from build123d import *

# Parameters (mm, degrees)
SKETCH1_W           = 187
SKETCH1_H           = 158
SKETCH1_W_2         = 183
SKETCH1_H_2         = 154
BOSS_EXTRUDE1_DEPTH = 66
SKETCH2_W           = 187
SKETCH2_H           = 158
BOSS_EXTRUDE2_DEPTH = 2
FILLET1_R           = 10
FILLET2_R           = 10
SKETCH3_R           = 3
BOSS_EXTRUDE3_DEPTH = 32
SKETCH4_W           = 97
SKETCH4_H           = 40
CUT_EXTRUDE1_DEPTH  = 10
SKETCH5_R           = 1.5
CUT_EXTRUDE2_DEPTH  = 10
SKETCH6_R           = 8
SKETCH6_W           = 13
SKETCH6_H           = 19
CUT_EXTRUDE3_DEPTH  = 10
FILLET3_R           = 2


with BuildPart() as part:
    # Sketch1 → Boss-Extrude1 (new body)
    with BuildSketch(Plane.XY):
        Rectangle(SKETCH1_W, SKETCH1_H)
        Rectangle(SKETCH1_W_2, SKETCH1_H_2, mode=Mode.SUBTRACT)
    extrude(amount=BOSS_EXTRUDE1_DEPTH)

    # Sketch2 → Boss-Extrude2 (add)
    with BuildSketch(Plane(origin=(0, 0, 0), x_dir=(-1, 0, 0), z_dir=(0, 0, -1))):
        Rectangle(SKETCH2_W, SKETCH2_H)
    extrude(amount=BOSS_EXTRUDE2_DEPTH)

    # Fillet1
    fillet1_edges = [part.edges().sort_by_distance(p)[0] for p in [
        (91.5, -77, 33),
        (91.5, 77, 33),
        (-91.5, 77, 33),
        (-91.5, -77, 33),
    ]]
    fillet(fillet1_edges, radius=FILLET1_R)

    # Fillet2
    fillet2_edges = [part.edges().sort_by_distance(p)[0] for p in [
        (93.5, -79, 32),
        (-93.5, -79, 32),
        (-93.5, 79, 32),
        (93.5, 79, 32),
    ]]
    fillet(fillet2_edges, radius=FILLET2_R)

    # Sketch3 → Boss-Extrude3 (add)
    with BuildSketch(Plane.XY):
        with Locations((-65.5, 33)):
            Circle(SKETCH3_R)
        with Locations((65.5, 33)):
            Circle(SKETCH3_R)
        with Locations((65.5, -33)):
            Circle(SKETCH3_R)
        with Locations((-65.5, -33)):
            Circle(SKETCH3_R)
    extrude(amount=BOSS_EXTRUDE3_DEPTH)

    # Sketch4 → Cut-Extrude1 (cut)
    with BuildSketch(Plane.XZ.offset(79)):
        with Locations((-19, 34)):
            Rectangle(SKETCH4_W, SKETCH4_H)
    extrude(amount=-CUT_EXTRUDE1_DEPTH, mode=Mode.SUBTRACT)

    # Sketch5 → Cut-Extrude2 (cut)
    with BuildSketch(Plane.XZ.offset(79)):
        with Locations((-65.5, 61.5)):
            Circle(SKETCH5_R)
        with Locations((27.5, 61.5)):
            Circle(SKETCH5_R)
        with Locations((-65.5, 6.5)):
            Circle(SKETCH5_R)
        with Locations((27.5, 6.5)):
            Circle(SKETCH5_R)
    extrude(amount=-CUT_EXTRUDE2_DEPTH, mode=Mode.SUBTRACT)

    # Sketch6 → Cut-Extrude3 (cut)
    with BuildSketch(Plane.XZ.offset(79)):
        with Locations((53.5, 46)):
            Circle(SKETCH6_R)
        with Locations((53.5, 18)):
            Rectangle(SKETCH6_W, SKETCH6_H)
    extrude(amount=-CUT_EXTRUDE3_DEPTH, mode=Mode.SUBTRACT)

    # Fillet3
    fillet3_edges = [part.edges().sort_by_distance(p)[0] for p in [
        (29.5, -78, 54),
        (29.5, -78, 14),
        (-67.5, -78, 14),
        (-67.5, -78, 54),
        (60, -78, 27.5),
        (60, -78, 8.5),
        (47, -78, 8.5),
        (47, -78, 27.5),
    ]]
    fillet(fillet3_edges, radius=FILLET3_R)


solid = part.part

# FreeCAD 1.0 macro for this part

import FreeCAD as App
import Part
import Sketcher

V = App.Vector
Q = App.Units.Quantity


def edges_at(feature, points):
    """Names of the edges that pass closest to the given points."""
    edges = feature.Shape.Edges
    near = lambda p: min(range(len(edges)), key=lambda i: edges[i].distToShape(Part.Vertex(*p))[0])
    return sorted({f"Edge{near(p) + 1}" for p in points})

doc = App.newDocument("Part")
body = doc.addObject("PartDesign::Body", "Body")

# Sketch on XY plane
sketch1 = doc.addObject("Sketcher::SketchObject", "Sketch")
body.addObject(sketch1)
sketch1.AttachmentSupport = (doc.XY_Plane, [""])
sketch1.MapMode = "FlatFace"
sketch1.addGeometry(Part.LineSegment(V(-94, 79, 0), V(-94, -79, 0)), False)
sketch1.addGeometry(Part.LineSegment(V(-94, -79, 0), V(94, -79, 0)), False)
sketch1.addGeometry(Part.LineSegment(V(94, -79, 0), V(94, 79, 0)), False)
sketch1.addGeometry(Part.LineSegment(V(94, 79, 0), V(-94, 79, 0)), False)
sketch1.addGeometry(Part.LineSegment(V(92, -77, 0), V(-92, -77, 0)), False)
sketch1.addGeometry(Part.LineSegment(V(-92, -77, 0), V(-92, 77, 0)), False)
sketch1.addGeometry(Part.LineSegment(V(-92, 77, 0), V(92, 77, 0)), False)
sketch1.addGeometry(Part.LineSegment(V(92, 77, 0), V(92, -77, 0)), False)
sketch1.addConstraint(Sketcher.Constraint("Coincident", 0, 2, 1, 1))
sketch1.addConstraint(Sketcher.Constraint("Coincident", 1, 2, 2, 1))
sketch1.addConstraint(Sketcher.Constraint("Coincident", 2, 2, 3, 1))
sketch1.addConstraint(Sketcher.Constraint("Coincident", 3, 2, 0, 1))
sketch1.addConstraint(Sketcher.Constraint("Coincident", 4, 2, 5, 1))
sketch1.addConstraint(Sketcher.Constraint("Coincident", 5, 2, 6, 1))
sketch1.addConstraint(Sketcher.Constraint("Coincident", 6, 2, 7, 1))
sketch1.addConstraint(Sketcher.Constraint("Coincident", 7, 2, 4, 1))
sketch1.addConstraint(Sketcher.Constraint("Vertical", 0))
sketch1.addConstraint(Sketcher.Constraint("Horizontal", 1))
sketch1.addConstraint(Sketcher.Constraint("Vertical", 2))
sketch1.addConstraint(Sketcher.Constraint("Horizontal", 3))
sketch1.addConstraint(Sketcher.Constraint("Horizontal", 4))
sketch1.addConstraint(Sketcher.Constraint("Vertical", 5))
sketch1.addConstraint(Sketcher.Constraint("Horizontal", 6))
sketch1.addConstraint(Sketcher.Constraint("Vertical", 7))
sketch1.addConstraint(Sketcher.Constraint("Symmetric", 0, 2, 2, 2, -1, 1))
sketch1.addConstraint(Sketcher.Constraint("Symmetric", 4, 2, 6, 2, -1, 1))
sketch1.addConstraint(Sketcher.Constraint("DistanceX", 1, 1, 1, 2, Q("187 mm")))
sketch1.addConstraint(Sketcher.Constraint("DistanceX", 4, 2, 4, 1, Q("183 mm")))
sketch1.addConstraint(Sketcher.Constraint("DistanceY", 0, 2, 0, 1, Q("158 mm")))
sketch1.addConstraint(Sketcher.Constraint("DistanceY", 5, 1, 5, 2, Q("154 mm")))
pad1 = doc.addObject("PartDesign::Pad", "Pad")
body.addObject(pad1)
pad1.Profile = sketch1
pad1.Length = 66

# Sketch on XY plane
sketch2 = doc.addObject("Sketcher::SketchObject", "Sketch001")
body.addObject(sketch2)
sketch2.AttachmentSupport = (doc.XY_Plane, [""])
sketch2.MapMode = "FlatFace"
sketch2.addGeometry(Part.LineSegment(V(94, 79, 0), V(94, -79, 0)), False)
sketch2.addGeometry(Part.LineSegment(V(94, -79, 0), V(-94, -79, 0)), False)
sketch2.addGeometry(Part.LineSegment(V(-94, -79, 0), V(-94, 79, 0)), False)
sketch2.addGeometry(Part.LineSegment(V(-94, 79, 0), V(94, 79, 0)), False)
sketch2.addConstraint(Sketcher.Constraint("Coincident", 0, 2, 1, 1))
sketch2.addConstraint(Sketcher.Constraint("Coincident", 1, 2, 2, 1))
sketch2.addConstraint(Sketcher.Constraint("Coincident", 2, 2, 3, 1))
sketch2.addConstraint(Sketcher.Constraint("Coincident", 3, 2, 0, 1))
sketch2.addConstraint(Sketcher.Constraint("Vertical", 0))
sketch2.addConstraint(Sketcher.Constraint("Horizontal", 1))
sketch2.addConstraint(Sketcher.Constraint("Vertical", 2))
sketch2.addConstraint(Sketcher.Constraint("Horizontal", 3))
sketch2.addConstraint(Sketcher.Constraint("Symmetric", 0, 2, 2, 2, -1, 1))
sketch2.addConstraint(Sketcher.Constraint("DistanceX", 1, 2, 1, 1, Q("187 mm")))
sketch2.addConstraint(Sketcher.Constraint("DistanceY", 0, 2, 0, 1, Q("158 mm")))
pad2 = doc.addObject("PartDesign::Pad", "Pad001")
body.addObject(pad2)
pad2.Profile = sketch2
pad2.Length = 2
pad2.Reversed = True
doc.recompute()

fillet = doc.addObject("PartDesign::Fillet", "Fillet")
body.addObject(fillet)
fillet.Base = (pad2, edges_at(pad2, [
    (91.5, -77, 33),
    (91.5, 77, 33),
    (-91.5, 77, 33),
    (-91.5, -77, 33),
]))
fillet.Radius = 10
doc.recompute()

fillet2 = doc.addObject("PartDesign::Fillet", "Fillet001")
body.addObject(fillet2)
fillet2.Base = (fillet, edges_at(fillet, [
    (93.5, -79, 32),
    (-93.5, -79, 32),
    (-93.5, 79, 32),
    (93.5, 79, 32),
]))
fillet2.Radius = 10

# Sketch on XY plane
sketch3 = doc.addObject("Sketcher::SketchObject", "Sketch002")
body.addObject(sketch3)
sketch3.AttachmentSupport = (doc.XY_Plane, [""])
sketch3.MapMode = "FlatFace"
sketch3.addGeometry(Part.Circle(V(-65.5, 33, 0), V(0, 0, 1), 3), False)
sketch3.addGeometry(Part.Circle(V(65.5, 33, 0), V(0, 0, 1), 3), False)
sketch3.addGeometry(Part.Circle(V(65.5, -33, 0), V(0, 0, 1), 3), False)
sketch3.addGeometry(Part.Circle(V(-65.5, -33, 0), V(0, 0, 1), 3), False)
sketch3.addConstraint(Sketcher.Constraint("Equal", 0, 1))
sketch3.addConstraint(Sketcher.Constraint("Equal", 1, 2))
sketch3.addConstraint(Sketcher.Constraint("Equal", 2, 3))
sketch3.addConstraint(Sketcher.Constraint("Symmetric", 0, 3, 2, 3, -1, 1))
sketch3.addConstraint(Sketcher.Constraint("Symmetric", 1, 3, 3, 3, -1, 1))
sketch3.addConstraint(Sketcher.Constraint("Symmetric", 0, 3, 1, 3, -2))
sketch3.addConstraint(Sketcher.Constraint("Diameter", 0, Q("6 mm")))
sketch3.addConstraint(Sketcher.Constraint("DistanceY", -1, 1, 0, 3, Q("33 mm")))
sketch3.addConstraint(Sketcher.Constraint("DistanceX", 0, 3, 1, 3, Q("131 mm")))
pad3 = doc.addObject("PartDesign::Pad", "Pad002")
body.addObject(pad3)
pad3.Profile = sketch3
pad3.Length = 32

# Sketch on XZ plane
sketch4 = doc.addObject("Sketcher::SketchObject", "Sketch003")
body.addObject(sketch4)
sketch4.AttachmentSupport = (doc.XZ_Plane, [""])
sketch4.MapMode = "FlatFace"
sketch4.AttachmentOffset = App.Placement(V(0, 0, 79), App.Rotation())
sketch4.addGeometry(Part.LineSegment(V(-68, 54, 0), V(-68, 14, 0)), False)
sketch4.addGeometry(Part.LineSegment(V(-68, 14, 0), V(30, 14, 0)), False)
sketch4.addGeometry(Part.LineSegment(V(30, 14, 0), V(30, 54, 0)), False)
sketch4.addGeometry(Part.LineSegment(V(30, 54, 0), V(-68, 54, 0)), False)
sketch4.addConstraint(Sketcher.Constraint("Coincident", 0, 2, 1, 1))
sketch4.addConstraint(Sketcher.Constraint("Coincident", 1, 2, 2, 1))
sketch4.addConstraint(Sketcher.Constraint("Coincident", 2, 2, 3, 1))
sketch4.addConstraint(Sketcher.Constraint("Coincident", 3, 2, 0, 1))
sketch4.addConstraint(Sketcher.Constraint("Vertical", 0))
sketch4.addConstraint(Sketcher.Constraint("Horizontal", 1))
sketch4.addConstraint(Sketcher.Constraint("Vertical", 2))
sketch4.addConstraint(Sketcher.Constraint("Horizontal", 3))
sketch4.addConstraint(Sketcher.Constraint("DistanceX", 1, 1, 1, 2, Q("97 mm")))
sketch4.addConstraint(Sketcher.Constraint("DistanceY", 0, 2, 0, 1, Q("40 mm")))
sketch4.addConstraint(Sketcher.Constraint("DistanceY", -1, 1, 0, 2, Q("14 mm")))
sketch4.addConstraint(Sketcher.Constraint("DistanceX", 0, 2, -1, 1, Q("67.5 mm")))
pocket1 = doc.addObject("PartDesign::Pocket", "Pocket")
body.addObject(pocket1)
pocket1.Profile = sketch4
pocket1.Length = 10

# Sketch on XZ plane
sketch5 = doc.addObject("Sketcher::SketchObject", "Sketch004")
body.addObject(sketch5)
sketch5.AttachmentSupport = (doc.XZ_Plane, [""])
sketch5.MapMode = "FlatFace"
sketch5.AttachmentOffset = App.Placement(V(0, 0, 79), App.Rotation())
sketch5.addGeometry(Part.Circle(V(-65.5, 61.5, 0), V(0, 0, 1), 1.5), False)
sketch5.addGeometry(Part.Circle(V(27.5, 61.5, 0), V(0, 0, 1), 1.5), False)
sketch5.addGeometry(Part.Circle(V(-65.5, 6.5, 0), V(0, 0, 1), 1.5), False)
sketch5.addGeometry(Part.Circle(V(27.5, 6.5, 0), V(0, 0, 1), 1.5), False)
sketch5.addConstraint(Sketcher.Constraint("Equal", 0, 1))
sketch5.addConstraint(Sketcher.Constraint("Equal", 1, 2))
sketch5.addConstraint(Sketcher.Constraint("Equal", 2, 3))
sketch5.addConstraint(Sketcher.Constraint("Horizontal", 0, 3, 1, 3))
sketch5.addConstraint(Sketcher.Constraint("Horizontal", 2, 3, 3, 3))
sketch5.addConstraint(Sketcher.Constraint("Vertical", 0, 3, 2, 3))
sketch5.addConstraint(Sketcher.Constraint("Vertical", 1, 3, 3, 3))
sketch5.addConstraint(Sketcher.Constraint("Diameter", 0, Q("3 mm")))
sketch5.addConstraint(Sketcher.Constraint("DistanceX", 0, 3, 1, 3, Q("93 mm")))
sketch5.addConstraint(Sketcher.Constraint("DistanceY", 2, 3, 0, 3, Q("55 mm")))
sketch5.addConstraint(Sketcher.Constraint("DistanceX", 0, 3, -1, 1, Q("65.5 mm")))
sketch5.addConstraint(Sketcher.Constraint("DistanceY", -1, 1, 0, 3, Q("61.5 mm")))
pocket2 = doc.addObject("PartDesign::Pocket", "Pocket001")
body.addObject(pocket2)
pocket2.Profile = sketch5
pocket2.Length = 10

# Sketch on XZ plane
sketch6 = doc.addObject("Sketcher::SketchObject", "Sketch005")
body.addObject(sketch6)
sketch6.AttachmentSupport = (doc.XZ_Plane, [""])
sketch6.MapMode = "FlatFace"
sketch6.AttachmentOffset = App.Placement(V(0, 0, 79), App.Rotation())
sketch6.addGeometry(Part.Circle(V(54, 46, 0), V(0, 0, 1), 8), False)
sketch6.addGeometry(Part.LineSegment(V(47, 28, 0), V(47, 8, 0)), False)
sketch6.addGeometry(Part.LineSegment(V(47, 8, 0), V(60, 8, 0)), False)
sketch6.addGeometry(Part.LineSegment(V(60, 8, 0), V(60, 28, 0)), False)
sketch6.addGeometry(Part.LineSegment(V(60, 28, 0), V(47, 28, 0)), False)
sketch6.addConstraint(Sketcher.Constraint("Coincident", 1, 2, 2, 1))
sketch6.addConstraint(Sketcher.Constraint("Coincident", 2, 2, 3, 1))
sketch6.addConstraint(Sketcher.Constraint("Coincident", 3, 2, 4, 1))
sketch6.addConstraint(Sketcher.Constraint("Coincident", 4, 2, 1, 1))
sketch6.addConstraint(Sketcher.Constraint("Vertical", 1))
sketch6.addConstraint(Sketcher.Constraint("Horizontal", 2))
sketch6.addConstraint(Sketcher.Constraint("Vertical", 3))
sketch6.addConstraint(Sketcher.Constraint("Horizontal", 4))
sketch6.addConstraint(Sketcher.Constraint("Diameter", 0, Q("16 mm")))
sketch6.addConstraint(Sketcher.Constraint("DistanceX", 2, 1, 2, 2, Q("13 mm")))
sketch6.addConstraint(Sketcher.Constraint("DistanceY", 1, 2, 1, 1, Q("19 mm")))
sketch6.addConstraint(Sketcher.Constraint("DistanceY", -1, 1, 0, 3, Q("46 mm")))
sketch6.addConstraint(Sketcher.Constraint("DistanceX", -1, 1, 1, 2, Q("47 mm")))
sketch6.addConstraint(Sketcher.Constraint("DistanceX", -1, 1, 0, 3, Q("53.5 mm")))
sketch6.addConstraint(Sketcher.Constraint("DistanceY", -1, 1, 1, 2, Q("8.5 mm")))
pocket3 = doc.addObject("PartDesign::Pocket", "Pocket002")
body.addObject(pocket3)
pocket3.Profile = sketch6
pocket3.Length = 10
doc.recompute()

fillet3 = doc.addObject("PartDesign::Fillet", "Fillet002")
body.addObject(fillet3)
fillet3.Base = (pocket3, edges_at(pocket3, [
    (29.5, -78, 54),
    (29.5, -78, 14),
    (-67.5, -78, 14),
    (-67.5, -78, 54),
    (60, -78, 27.5),
    (60, -78, 8.5),
    (47, -78, 8.5),
    (47, -78, 27.5),
]))
fillet3.Radius = 2

doc.recompute()
